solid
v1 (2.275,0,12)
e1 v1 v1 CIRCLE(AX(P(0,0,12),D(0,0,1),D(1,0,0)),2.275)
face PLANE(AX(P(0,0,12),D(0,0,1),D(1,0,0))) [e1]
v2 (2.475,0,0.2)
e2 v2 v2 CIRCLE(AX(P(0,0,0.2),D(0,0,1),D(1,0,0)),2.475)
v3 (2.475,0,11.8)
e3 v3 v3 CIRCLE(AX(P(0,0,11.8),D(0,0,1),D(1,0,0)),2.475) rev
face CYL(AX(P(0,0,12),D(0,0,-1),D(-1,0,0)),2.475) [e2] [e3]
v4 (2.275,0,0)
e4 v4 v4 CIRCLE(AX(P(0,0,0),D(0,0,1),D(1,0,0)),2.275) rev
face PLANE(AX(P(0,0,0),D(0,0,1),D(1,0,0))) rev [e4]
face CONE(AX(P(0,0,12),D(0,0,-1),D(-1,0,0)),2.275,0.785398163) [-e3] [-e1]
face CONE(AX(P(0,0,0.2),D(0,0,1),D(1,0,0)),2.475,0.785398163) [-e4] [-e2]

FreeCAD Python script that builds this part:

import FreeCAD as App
import Part
import Sketcher


def edges_at(feature, points):
    """Names of the edges that pass closest to the given points."""
    edges = feature.Shape.Edges
    near = lambda p: min(range(len(edges)), key=lambda i: edges[i].distToShape(Part.Vertex(*p))[0])
    return sorted({f"Edge{near(p) + 1}" for p in points})

doc = App.newDocument("Part")
params = doc.addObject("Spreadsheet::Sheet", "Params")
for row, (alias, value) in enumerate([
    ("sketch1_diameter", "4.95 mm"),
    ("pad1_length", "12 mm"),
    ("chamfer_size", "0.2 mm"),
], start=1):
    params.set(f"A{row}", alias)
    params.set(f"B{row}", "=" + value)
    params.setAlias(f"B{row}", alias)

body = doc.addObject("PartDesign::Body", "Body")

sketch1 = body.newObject("Sketcher::SketchObject", "Sketch")
sketch1.AttachmentSupport = (doc.getObject("XY_Plane"), [""])
sketch1.MapMode = "FlatFace"
sketch1.addGeometry(Part.Circle(App.Vector(0, 0, 0), App.Vector(0, 0, 1), 2.5), False)
sketch1.addConstraint([
    Sketcher.Constraint("Coincident", 0, 3, -1, 1),
    Sketcher.Constraint("Diameter", 0, 4.95),
])
sketch1.setExpression("Constraints[1]", "Params.sketch1_diameter")
pad1 = body.newObject("PartDesign::Pad", "Pad")
pad1.Profile = sketch1
pad1.setExpression("Length", "Params.pad1_length")
doc.recompute()

chamfer = body.newObject("PartDesign::Chamfer", "Chamfer")
chamfer.Base = (pad1, edges_at(pad1, [(-2.475, 0, 0), (-2.475, 0, 12)]))
chamfer.setExpression("Size", "Params.chamfer_size")

doc.recompute()
